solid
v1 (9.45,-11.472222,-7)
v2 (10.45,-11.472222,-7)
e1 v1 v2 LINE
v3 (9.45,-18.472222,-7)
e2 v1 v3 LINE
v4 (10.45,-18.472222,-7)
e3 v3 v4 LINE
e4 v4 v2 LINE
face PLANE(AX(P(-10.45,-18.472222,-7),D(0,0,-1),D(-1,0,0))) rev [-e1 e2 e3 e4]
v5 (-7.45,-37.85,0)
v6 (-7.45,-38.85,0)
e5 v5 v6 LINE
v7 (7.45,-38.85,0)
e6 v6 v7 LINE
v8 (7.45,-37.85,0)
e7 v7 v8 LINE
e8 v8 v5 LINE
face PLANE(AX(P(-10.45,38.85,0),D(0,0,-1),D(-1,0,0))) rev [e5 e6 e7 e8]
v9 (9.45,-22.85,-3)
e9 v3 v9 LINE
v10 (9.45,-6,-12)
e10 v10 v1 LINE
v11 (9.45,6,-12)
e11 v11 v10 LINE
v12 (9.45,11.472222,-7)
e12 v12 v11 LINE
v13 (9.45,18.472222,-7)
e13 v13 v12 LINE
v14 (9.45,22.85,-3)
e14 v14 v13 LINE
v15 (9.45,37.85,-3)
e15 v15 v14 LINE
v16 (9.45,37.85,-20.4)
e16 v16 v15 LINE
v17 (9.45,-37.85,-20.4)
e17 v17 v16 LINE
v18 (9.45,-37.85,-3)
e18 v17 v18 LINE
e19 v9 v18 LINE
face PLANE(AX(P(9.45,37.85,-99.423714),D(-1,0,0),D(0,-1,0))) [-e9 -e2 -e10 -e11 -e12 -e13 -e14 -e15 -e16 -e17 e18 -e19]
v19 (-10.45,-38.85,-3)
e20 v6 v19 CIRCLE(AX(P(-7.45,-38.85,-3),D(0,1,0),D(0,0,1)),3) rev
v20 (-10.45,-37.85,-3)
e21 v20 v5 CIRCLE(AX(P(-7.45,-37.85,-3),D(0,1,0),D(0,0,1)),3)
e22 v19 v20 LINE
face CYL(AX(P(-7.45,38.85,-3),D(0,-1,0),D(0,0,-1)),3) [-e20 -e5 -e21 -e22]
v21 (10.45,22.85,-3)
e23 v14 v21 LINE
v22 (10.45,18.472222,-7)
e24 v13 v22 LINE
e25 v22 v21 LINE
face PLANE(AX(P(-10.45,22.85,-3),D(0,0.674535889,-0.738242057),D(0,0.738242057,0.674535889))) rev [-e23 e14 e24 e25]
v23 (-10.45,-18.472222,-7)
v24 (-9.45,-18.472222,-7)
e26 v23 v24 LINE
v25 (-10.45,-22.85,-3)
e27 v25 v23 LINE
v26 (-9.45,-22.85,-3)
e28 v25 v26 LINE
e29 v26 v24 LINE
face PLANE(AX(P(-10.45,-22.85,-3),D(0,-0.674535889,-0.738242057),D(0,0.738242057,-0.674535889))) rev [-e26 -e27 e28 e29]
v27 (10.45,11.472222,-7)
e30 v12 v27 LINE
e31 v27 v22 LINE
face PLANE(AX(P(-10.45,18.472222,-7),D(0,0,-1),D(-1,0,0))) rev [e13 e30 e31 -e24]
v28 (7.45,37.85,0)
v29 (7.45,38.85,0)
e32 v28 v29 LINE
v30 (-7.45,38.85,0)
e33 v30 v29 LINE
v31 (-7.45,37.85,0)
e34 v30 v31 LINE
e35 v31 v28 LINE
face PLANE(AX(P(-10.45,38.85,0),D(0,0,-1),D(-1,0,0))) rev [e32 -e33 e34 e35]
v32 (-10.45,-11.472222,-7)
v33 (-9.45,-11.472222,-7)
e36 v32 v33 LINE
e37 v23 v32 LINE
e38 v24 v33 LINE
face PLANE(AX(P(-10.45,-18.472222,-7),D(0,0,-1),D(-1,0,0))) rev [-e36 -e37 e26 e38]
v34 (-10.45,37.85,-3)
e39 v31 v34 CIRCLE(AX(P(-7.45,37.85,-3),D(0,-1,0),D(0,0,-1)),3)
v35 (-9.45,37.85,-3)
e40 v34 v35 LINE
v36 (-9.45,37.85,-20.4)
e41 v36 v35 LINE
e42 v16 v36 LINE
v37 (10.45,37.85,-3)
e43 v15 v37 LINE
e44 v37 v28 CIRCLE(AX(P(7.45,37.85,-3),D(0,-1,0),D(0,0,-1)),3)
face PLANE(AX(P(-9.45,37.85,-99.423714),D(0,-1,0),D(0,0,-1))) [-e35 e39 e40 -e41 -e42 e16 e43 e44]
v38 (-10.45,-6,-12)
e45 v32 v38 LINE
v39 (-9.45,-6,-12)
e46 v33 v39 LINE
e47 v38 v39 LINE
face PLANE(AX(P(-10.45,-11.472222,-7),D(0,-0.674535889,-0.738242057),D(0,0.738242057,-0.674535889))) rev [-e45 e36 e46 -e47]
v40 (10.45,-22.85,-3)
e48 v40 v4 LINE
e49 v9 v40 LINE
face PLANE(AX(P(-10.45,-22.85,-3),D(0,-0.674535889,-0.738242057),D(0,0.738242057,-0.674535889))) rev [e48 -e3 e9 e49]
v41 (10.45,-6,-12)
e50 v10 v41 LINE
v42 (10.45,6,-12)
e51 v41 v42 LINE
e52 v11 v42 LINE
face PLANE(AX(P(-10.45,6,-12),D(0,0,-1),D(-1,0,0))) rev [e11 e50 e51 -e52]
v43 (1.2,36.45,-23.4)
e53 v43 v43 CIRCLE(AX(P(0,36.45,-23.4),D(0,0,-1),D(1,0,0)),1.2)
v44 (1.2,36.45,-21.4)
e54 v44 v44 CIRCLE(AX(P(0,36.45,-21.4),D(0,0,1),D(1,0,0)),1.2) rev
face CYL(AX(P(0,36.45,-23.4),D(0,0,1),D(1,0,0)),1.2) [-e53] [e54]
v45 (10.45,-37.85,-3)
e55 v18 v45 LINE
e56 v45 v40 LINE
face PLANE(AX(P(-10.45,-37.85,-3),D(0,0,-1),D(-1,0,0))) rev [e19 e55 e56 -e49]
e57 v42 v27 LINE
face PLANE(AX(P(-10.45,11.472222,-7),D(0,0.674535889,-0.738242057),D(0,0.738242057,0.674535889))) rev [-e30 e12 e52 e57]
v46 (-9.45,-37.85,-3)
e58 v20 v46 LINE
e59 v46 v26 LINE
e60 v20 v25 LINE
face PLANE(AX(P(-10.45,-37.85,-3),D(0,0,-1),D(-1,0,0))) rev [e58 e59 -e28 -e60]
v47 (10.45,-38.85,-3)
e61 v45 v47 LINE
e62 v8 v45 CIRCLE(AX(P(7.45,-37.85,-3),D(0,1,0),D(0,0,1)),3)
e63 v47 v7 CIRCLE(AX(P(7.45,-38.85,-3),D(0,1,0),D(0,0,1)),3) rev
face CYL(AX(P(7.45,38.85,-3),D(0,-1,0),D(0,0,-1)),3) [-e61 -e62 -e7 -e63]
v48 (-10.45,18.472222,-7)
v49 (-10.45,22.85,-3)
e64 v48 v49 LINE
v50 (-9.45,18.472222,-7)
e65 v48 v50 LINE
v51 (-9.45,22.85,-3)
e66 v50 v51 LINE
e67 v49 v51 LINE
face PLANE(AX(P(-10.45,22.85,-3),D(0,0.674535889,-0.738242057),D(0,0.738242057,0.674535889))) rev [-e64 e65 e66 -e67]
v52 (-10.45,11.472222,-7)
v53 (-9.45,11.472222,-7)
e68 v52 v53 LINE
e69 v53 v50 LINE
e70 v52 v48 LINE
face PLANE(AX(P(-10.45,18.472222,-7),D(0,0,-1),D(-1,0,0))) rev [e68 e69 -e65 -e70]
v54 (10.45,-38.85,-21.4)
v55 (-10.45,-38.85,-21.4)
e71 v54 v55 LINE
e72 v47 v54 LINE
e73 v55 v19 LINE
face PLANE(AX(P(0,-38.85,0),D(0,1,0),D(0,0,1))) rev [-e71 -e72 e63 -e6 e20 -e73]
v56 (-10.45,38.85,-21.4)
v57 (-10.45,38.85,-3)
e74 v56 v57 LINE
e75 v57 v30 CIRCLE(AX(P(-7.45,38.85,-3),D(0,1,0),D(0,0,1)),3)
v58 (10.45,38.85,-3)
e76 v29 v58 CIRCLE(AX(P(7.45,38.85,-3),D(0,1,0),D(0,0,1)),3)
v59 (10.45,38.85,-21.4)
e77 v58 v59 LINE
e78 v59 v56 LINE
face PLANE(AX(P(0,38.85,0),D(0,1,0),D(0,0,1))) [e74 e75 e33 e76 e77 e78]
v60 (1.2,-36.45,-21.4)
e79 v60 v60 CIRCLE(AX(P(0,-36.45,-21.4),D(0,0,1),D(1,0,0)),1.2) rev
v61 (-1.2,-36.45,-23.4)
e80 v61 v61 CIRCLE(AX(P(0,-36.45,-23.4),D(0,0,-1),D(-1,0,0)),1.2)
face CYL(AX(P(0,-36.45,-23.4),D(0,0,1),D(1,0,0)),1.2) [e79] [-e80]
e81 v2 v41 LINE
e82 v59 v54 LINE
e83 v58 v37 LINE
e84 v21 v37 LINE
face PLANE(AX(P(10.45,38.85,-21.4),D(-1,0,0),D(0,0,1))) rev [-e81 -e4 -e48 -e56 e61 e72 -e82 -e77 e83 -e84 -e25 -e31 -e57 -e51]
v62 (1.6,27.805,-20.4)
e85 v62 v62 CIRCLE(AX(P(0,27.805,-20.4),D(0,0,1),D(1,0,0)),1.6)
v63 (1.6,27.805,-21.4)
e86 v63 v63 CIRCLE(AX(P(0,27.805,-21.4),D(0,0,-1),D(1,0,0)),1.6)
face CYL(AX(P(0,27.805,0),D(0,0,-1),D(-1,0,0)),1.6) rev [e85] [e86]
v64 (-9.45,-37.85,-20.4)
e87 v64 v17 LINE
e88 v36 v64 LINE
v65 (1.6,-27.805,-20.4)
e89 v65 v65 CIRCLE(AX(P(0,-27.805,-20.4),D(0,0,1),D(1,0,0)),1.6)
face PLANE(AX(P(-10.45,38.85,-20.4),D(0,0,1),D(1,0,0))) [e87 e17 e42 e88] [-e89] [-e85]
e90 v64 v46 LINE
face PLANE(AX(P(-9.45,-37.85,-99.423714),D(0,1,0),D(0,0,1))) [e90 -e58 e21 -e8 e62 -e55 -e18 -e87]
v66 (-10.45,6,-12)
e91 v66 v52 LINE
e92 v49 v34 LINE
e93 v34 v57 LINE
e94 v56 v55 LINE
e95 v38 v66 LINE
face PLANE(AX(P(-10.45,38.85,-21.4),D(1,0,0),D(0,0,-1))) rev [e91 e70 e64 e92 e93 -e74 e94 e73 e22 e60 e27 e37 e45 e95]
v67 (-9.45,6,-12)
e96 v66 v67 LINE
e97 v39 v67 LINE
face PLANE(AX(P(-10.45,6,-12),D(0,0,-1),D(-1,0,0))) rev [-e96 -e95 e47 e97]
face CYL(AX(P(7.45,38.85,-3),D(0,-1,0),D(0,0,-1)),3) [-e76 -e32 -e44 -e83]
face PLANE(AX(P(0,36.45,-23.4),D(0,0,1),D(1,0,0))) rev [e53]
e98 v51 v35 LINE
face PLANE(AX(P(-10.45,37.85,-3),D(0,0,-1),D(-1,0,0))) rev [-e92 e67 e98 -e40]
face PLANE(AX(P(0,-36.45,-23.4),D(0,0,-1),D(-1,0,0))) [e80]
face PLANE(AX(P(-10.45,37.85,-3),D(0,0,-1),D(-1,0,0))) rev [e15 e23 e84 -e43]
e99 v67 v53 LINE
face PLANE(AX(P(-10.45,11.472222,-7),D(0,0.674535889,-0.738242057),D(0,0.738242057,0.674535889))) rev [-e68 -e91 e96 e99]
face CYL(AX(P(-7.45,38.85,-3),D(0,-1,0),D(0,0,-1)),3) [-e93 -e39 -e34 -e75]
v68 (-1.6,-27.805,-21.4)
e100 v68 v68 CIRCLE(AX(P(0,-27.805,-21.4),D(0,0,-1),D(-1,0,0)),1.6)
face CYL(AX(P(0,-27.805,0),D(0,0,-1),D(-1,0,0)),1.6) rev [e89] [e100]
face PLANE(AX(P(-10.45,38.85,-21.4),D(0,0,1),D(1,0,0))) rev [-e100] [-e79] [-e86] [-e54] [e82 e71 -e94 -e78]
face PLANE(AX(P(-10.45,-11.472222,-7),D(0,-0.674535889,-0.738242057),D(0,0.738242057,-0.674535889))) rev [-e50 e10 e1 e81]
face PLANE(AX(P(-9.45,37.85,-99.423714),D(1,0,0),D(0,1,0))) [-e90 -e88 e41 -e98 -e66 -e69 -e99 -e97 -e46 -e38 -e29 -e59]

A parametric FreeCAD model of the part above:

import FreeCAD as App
import Part
import Sketcher
from FreeCAD import Vector


def edges_at(feature, points):
    """Names of the edges that pass closest to the given points."""
    edges = feature.Shape.Edges
    near = lambda p: min(range(len(edges)), key=lambda i: edges[i].distToShape(Part.Vertex(*p))[0])
    return sorted({f"Edge{near(p) + 1}" for p in points})


def add_polygon(sketch, points):
    """Adds a closed chain of lines whose ends are joined by coincident constraints."""
    first, n = sketch.GeometryCount, len(points)
    for a, b in zip(points, points[1:] + points[:1]):
        sketch.addGeometry(Part.LineSegment(App.Vector(*a, 0), App.Vector(*b, 0)), False)
    for i in range(n):
        sketch.addConstraint(Sketcher.Constraint("Coincident", first + i, 2, first + (i + 1) % n, 1))

doc = App.newDocument("Part")
body = doc.addObject("PartDesign::Body", "Body")

sketch1 = body.newObject("Sketcher::SketchObject", "Sketch")
sketch1.AttachmentSupport = (doc.getObject("XZ_Plane"), [""])
sketch1.MapMode = "FlatFace"
add_polygon(sketch1, [(-10, -21), (-10, 0), (10, 0), (10, -21)])
sketch1.addConstraint([
    Sketcher.Constraint("Vertical", 0),
    Sketcher.Constraint("Horizontal", 1),
    Sketcher.Constraint("Vertical", 2),
    Sketcher.Constraint("Horizontal", 3),
    Sketcher.Constraint("Symmetric", 0, 2, 1, 2, -1, 1),
    Sketcher.Constraint("DistanceX", 1, 1, 1, 2, 20.9),
    Sketcher.Constraint("DistanceY", 0, 1, 0, 2, 21.4),
])
pad1 = body.newObject("PartDesign::Pad", "Pad")
pad1.Profile = sketch1
pad1.Length = 77.7
pad1.Midplane = True

sketch2 = body.newObject("Sketcher::SketchObject", "Sketch001")
sketch2.AttachmentSupport = (doc.getObject("XY_Plane"), [""])
sketch2.MapMode = "FlatFace"
add_polygon(sketch2, [(9, 38), (9, -38), (-9, -38), (-9, 38)])
sketch2.addConstraint([
    Sketcher.Constraint("Vertical", 0),
    Sketcher.Constraint("Horizontal", 1),
    Sketcher.Constraint("Vertical", 2),
    Sketcher.Constraint("Horizontal", 3),
    Sketcher.Constraint("Symmetric", 0, 2, 2, 2, -1, 1),
    Sketcher.Constraint("DistanceX", 1, 2, 1, 1, 18.9),
    Sketcher.Constraint("DistanceY", 0, 2, 0, 1, 75.7),
])
pocket1 = body.newObject("PartDesign::Pocket", "Pocket")
pocket1.Profile = sketch2
pocket1.Length = 20.4

sketch3 = body.newObject("Sketcher::SketchObject", "Sketch002")
sketch3.AttachmentSupport = (doc.getObject("YZ_Plane"), [""])
sketch3.MapMode = "FlatFace"
sketch3.AttachmentOffset = App.Placement(Vector(0, 0, 10.45), App.Rotation())
add_polygon(sketch3, [(37.9, -3), (37.9, 0), (-37.9, 0), (-37.9, -3), (-22.9, -3), (-18.5, -7), (-11.5, -7), (-6, -12), (6, -12), (11.5, -7), (18.5, -7), (22.9, -3)])
sketch3.addConstraint([
    Sketcher.Constraint("Vertical", 0),
    Sketcher.Constraint("Horizontal", 1),
    Sketcher.Constraint("Vertical", 2),
    Sketcher.Constraint("Horizontal", 3),
    Sketcher.Constraint("Horizontal", 5),
    Sketcher.Constraint("Horizontal", 7),
    Sketcher.Constraint("Horizontal", 9),
    Sketcher.Constraint("Horizontal", 11),
    Sketcher.Constraint("Symmetric", 0, 2, 1, 2, -1, 1),
    Sketcher.Constraint("Symmetric", 5, 2, 8, 2, -2),
    Sketcher.Constraint("Symmetric", 3, 2, 10, 2, -2),
    Sketcher.Constraint("Parallel", 4, 6),
    Sketcher.Constraint("Parallel", 8, 10),
    Sketcher.Constraint("Equal", 5, 9),
    Sketcher.Constraint("DistanceX", 3, 1, 3, 2, 15.0),
    Sketcher.Constraint("DistanceX", 5, 1, 5, 2, 7.0),
    Sketcher.Constraint("DistanceX", 7, 1, 7, 2, 12.0),
    Sketcher.Constraint("DistanceY", 0, 1, 0, 2, 3.0),
    Sketcher.Constraint("DistanceX", 1, 2, 1, 1, 75.7),
    Sketcher.Constraint("DistanceY", 4, 2, -1, 1, 7.0),
    Sketcher.Constraint("DistanceY", 6, 2, -1, 1, 12.0),
])
pocket2 = body.newObject("PartDesign::Pocket", "Pocket001")
pocket2.Profile = sketch3
pocket2.Type = "ThroughAll"

sketch4 = body.newObject("Sketcher::SketchObject", "Sketch003")
sketch4.AttachmentSupport = (doc.getObject("XY_Plane"), [""])
sketch4.MapMode = "FlatFace"
sketch4.AttachmentOffset = App.Placement(Vector(0, 0, -21.4), App.Rotation())
sketch4.addGeometry([
    Part.Circle(Vector(0, -36.5, 0), Vector(0, 0, 1), 1.2),
    Part.Circle(Vector(0, 36.5, 0), Vector(0, 0, 1), 1.2),
], False)
sketch4.addConstraint([
    Sketcher.Constraint("Equal", 0, 1),
    Sketcher.Constraint("Symmetric", 0, 3, 1, 3, -1, 1),
    Sketcher.Constraint("PointOnObject", 0, 3, -2),
    Sketcher.Constraint("Diameter", 0, 2.4),
    Sketcher.Constraint("DistanceY", 0, 3, 1, 3, 72.9),
])
pad2 = body.newObject("PartDesign::Pad", "Pad001")
pad2.Profile = sketch4
pad2.Length = 2
pad2.Reversed = True

sketch5 = body.newObject("Sketcher::SketchObject", "Sketch004")
sketch5.AttachmentSupport = (doc.getObject("XY_Plane"), [""])
sketch5.MapMode = "FlatFace"
sketch5.AttachmentOffset = App.Placement(Vector(0, 0, -21.4), App.Rotation())
sketch5.addGeometry([
    Part.Circle(Vector(0, -27.8, 0), Vector(0, 0, 1), 1.6),
    Part.Circle(Vector(0, 27.8, 0), Vector(0, 0, 1), 1.6),
], False)
sketch5.addConstraint([
    Sketcher.Constraint("Equal", 0, 1),
    Sketcher.Constraint("Symmetric", 0, 3, 1, 3, -1, 1),
    Sketcher.Constraint("PointOnObject", 0, 3, -2),
    Sketcher.Constraint("Diameter", 0, 3.2),
    Sketcher.Constraint("DistanceY", 0, 3, 1, 3, 55.61),
])
pocket3 = body.newObject("PartDesign::Pocket", "Pocket002")
pocket3.Profile = sketch5
pocket3.Type = "ThroughAll"
pocket3.Reversed = True
doc.recompute()

fillet = body.newObject("PartDesign::Fillet", "Fillet")
fillet.Base = (pocket3, edges_at(pocket3, [
    (-10.45, 38.35, 0),
    (10.45, 38.35, 0),
    (-10.45, -38.35, 0),
    (10.45, -38.35, 0),
]))
fillet.Radius = 3

doc.recompute()
